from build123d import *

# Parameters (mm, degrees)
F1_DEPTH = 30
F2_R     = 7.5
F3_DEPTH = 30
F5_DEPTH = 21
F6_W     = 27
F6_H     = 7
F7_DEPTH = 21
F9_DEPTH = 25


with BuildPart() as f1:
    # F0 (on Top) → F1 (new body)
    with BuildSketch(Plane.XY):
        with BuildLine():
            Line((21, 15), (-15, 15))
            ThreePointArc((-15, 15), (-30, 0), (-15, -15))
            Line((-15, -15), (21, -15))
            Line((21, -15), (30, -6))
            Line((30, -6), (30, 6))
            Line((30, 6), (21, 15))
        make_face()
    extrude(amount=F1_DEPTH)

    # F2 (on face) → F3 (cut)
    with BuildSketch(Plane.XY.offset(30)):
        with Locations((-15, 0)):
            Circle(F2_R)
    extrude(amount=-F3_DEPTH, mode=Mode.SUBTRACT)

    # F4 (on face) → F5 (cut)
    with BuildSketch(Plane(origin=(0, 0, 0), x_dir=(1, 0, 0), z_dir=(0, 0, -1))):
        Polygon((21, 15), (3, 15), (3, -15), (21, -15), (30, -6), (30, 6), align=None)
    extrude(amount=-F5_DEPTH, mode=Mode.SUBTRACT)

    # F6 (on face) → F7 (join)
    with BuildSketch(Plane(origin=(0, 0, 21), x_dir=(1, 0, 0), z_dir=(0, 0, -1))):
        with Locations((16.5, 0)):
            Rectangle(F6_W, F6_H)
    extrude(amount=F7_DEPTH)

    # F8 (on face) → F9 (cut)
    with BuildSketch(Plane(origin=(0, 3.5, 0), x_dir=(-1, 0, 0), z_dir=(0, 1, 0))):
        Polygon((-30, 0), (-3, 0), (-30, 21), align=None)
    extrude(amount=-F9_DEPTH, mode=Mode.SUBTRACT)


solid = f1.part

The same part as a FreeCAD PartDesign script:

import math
import FreeCAD as App
import Part
import Sketcher
Q = App.Units.Quantity


def add_polygon(sketch, points):
    """Adds a closed chain of lines whose ends are joined by coincident constraints."""
    first, n = sketch.GeometryCount, len(points)
    for a, b in zip(points, points[1:] + points[:1]):
        sketch.addGeometry(Part.LineSegment(App.Vector(*a, 0), App.Vector(*b, 0)), False)
    for i in range(n):
        sketch.addConstraint(Sketcher.Constraint("Coincident", first + i, 2, first + (i + 1) % n, 1))

doc = App.newDocument("Part")
body = doc.addObject("PartDesign::Body", "Body")

sketch1 = body.newObject("Sketcher::SketchObject", "Sketch")
sketch1.AttachmentSupport = (doc.getObject("XY_Plane"), [""])
sketch1.MapMode = "FlatFace"
sketch1.addGeometry([
    Part.LineSegment(App.Vector(21, 15, 0), App.Vector(-15, 15, 0)),
    Part.ArcOfCircle(Part.Circle(App.Vector(-15, 0, 0), App.Vector(0, 0, 1), 15), math.radians(90), math.radians(270)),
    Part.LineSegment(App.Vector(-15, -15, 0), App.Vector(21, -15, 0)),
    Part.LineSegment(App.Vector(21, -15, 0), App.Vector(30, -6, 0)),
    Part.LineSegment(App.Vector(30, -6, 0), App.Vector(30, 6, 0)),
    Part.LineSegment(App.Vector(30, 6, 0), App.Vector(21, 15, 0)),
], False)
sketch1.addConstraint([
    Sketcher.Constraint("Tangent", 0, 2, 1, 1),
    Sketcher.Constraint("Tangent", 1, 2, 2, 1),
    Sketcher.Constraint("Coincident", 2, 2, 3, 1),
    Sketcher.Constraint("Coincident", 3, 2, 4, 1),
    Sketcher.Constraint("Coincident", 4, 2, 5, 1),
    Sketcher.Constraint("Coincident", 5, 2, 0, 1),
    Sketcher.Constraint("Horizontal", 0),
    Sketcher.Constraint("Horizontal", 2),
    Sketcher.Constraint("Vertical", 4),
    Sketcher.Constraint("Symmetric", 2, 2, 5, 2, -1),
    Sketcher.Constraint("Perpendicular", 3, 5),
    Sketcher.Constraint("Equal", 3, 5),
    Sketcher.Constraint("Radius", 1, Q("15 mm")),
    Sketcher.Constraint("DistanceX", 0, 2, 0, 1, Q("36 mm")),
    Sketcher.Constraint("DistanceY", 4, 1, 4, 2, Q("12 mm")),
    Sketcher.Constraint("DistanceX", 1, 3, -1, 1, Q("15 mm")),
])
pad1 = body.newObject("PartDesign::Pad", "Pad")
pad1.Profile = sketch1
pad1.Length = 30

sketch2 = body.newObject("Sketcher::SketchObject", "Sketch001")
sketch2.AttachmentSupport = (doc.getObject("XY_Plane"), [""])
sketch2.MapMode = "FlatFace"
sketch2.AttachmentOffset = App.Placement(App.Vector(0, 0, 30), App.Rotation())
sketch2.addGeometry(Part.Circle(App.Vector(-15, 0, 0), App.Vector(0, 0, 1), 8), False)
sketch2.addConstraint([
    Sketcher.Constraint("PointOnObject", 0, 3, -1),
    Sketcher.Constraint("Diameter", 0, Q("15 mm")),
    Sketcher.Constraint("DistanceX", 0, 3, -1, 1, Q("15 mm")),
])
pocket1 = body.newObject("PartDesign::Pocket", "Pocket")
pocket1.Profile = sketch2
pocket1.Length = 30

sketch3 = body.newObject("Sketcher::SketchObject", "Sketch002")
sketch3.AttachmentSupport = (doc.getObject("XY_Plane"), [""])
sketch3.MapMode = "FlatFace"
add_polygon(sketch3, [(21, -15), (3, -15), (3, 15), (21, 15), (30, 6), (30, -6)])
sketch3.addConstraint([
    Sketcher.Constraint("Horizontal", 0),
    Sketcher.Constraint("Vertical", 1),
    Sketcher.Constraint("Horizontal", 2),
    Sketcher.Constraint("Vertical", 4),
    Sketcher.Constraint("Symmetric", 2, 2, 5, 2, -1),
    Sketcher.Constraint("Perpendicular", 3, 5),
    Sketcher.Constraint("Equal", 3, 5),
    Sketcher.Constraint("DistanceX", 0, 2, 0, 1, Q("18 mm")),
    Sketcher.Constraint("DistanceY", 1, 1, 1, 2, Q("30 mm")),
    Sketcher.Constraint("DistanceY", 4, 2, 4, 1, Q("12 mm")),
    Sketcher.Constraint("DistanceX", -1, 1, 0, 2, Q("3 mm")),
])
pocket2 = body.newObject("PartDesign::Pocket", "Pocket001")
pocket2.Profile = sketch3
pocket2.Length = 21
pocket2.Reversed = True

sketch4 = body.newObject("Sketcher::SketchObject", "Sketch003")
sketch4.AttachmentSupport = (doc.getObject("XY_Plane"), [""])
sketch4.MapMode = "FlatFace"
sketch4.AttachmentOffset = App.Placement(App.Vector(0, 0, 21), App.Rotation())
add_polygon(sketch4, [(3, -4), (3, 4), (30, 4), (30, -4)])
sketch4.addConstraint([
    Sketcher.Constraint("Vertical", 0),
    Sketcher.Constraint("Horizontal", 1),
    Sketcher.Constraint("Vertical", 2),
    Sketcher.Constraint("Horizontal", 3),
    Sketcher.Constraint("DistanceX", 1, 1, 1, 2, Q("27 mm")),
    Sketcher.Constraint("DistanceY", 0, 1, 0, 2, Q("7 mm")),
    Sketcher.Constraint("DistanceX", -1, 1, 0, 2, Q("3 mm")),
    Sketcher.Constraint("DistanceY", -1, 1, 0, 2, Q("3.5 mm")),
])
pad2 = body.newObject("PartDesign::Pad", "Pad001")
pad2.Profile = sketch4
pad2.Length = 21
pad2.Reversed = True

sketch5 = body.newObject("Sketcher::SketchObject", "Sketch004")
sketch5.AttachmentSupport = (doc.getObject("XZ_Plane"), [""])
sketch5.MapMode = "FlatFace"
sketch5.AttachmentOffset = App.Placement(App.Vector(0, 0, -3.5), App.Rotation())
add_polygon(sketch5, [(30, 0), (3, 0), (30, 21)])
sketch5.addConstraint([
    Sketcher.Constraint("Horizontal", 0),
    Sketcher.Constraint("Vertical", 2),
    Sketcher.Constraint("PointOnObject", 0, 2, -1),
    Sketcher.Constraint("DistanceX", 0, 2, 0, 1, Q("27 mm")),
    Sketcher.Constraint("DistanceY", 2, 2, 2, 1, Q("21 mm")),
    Sketcher.Constraint("DistanceX", -1, 1, 0, 2, Q("3 mm")),
])
pocket3 = body.newObject("PartDesign::Pocket", "Pocket002")
pocket3.Profile = sketch5
pocket3.Length = 25
pocket3.Reversed = True

doc.recompute()
